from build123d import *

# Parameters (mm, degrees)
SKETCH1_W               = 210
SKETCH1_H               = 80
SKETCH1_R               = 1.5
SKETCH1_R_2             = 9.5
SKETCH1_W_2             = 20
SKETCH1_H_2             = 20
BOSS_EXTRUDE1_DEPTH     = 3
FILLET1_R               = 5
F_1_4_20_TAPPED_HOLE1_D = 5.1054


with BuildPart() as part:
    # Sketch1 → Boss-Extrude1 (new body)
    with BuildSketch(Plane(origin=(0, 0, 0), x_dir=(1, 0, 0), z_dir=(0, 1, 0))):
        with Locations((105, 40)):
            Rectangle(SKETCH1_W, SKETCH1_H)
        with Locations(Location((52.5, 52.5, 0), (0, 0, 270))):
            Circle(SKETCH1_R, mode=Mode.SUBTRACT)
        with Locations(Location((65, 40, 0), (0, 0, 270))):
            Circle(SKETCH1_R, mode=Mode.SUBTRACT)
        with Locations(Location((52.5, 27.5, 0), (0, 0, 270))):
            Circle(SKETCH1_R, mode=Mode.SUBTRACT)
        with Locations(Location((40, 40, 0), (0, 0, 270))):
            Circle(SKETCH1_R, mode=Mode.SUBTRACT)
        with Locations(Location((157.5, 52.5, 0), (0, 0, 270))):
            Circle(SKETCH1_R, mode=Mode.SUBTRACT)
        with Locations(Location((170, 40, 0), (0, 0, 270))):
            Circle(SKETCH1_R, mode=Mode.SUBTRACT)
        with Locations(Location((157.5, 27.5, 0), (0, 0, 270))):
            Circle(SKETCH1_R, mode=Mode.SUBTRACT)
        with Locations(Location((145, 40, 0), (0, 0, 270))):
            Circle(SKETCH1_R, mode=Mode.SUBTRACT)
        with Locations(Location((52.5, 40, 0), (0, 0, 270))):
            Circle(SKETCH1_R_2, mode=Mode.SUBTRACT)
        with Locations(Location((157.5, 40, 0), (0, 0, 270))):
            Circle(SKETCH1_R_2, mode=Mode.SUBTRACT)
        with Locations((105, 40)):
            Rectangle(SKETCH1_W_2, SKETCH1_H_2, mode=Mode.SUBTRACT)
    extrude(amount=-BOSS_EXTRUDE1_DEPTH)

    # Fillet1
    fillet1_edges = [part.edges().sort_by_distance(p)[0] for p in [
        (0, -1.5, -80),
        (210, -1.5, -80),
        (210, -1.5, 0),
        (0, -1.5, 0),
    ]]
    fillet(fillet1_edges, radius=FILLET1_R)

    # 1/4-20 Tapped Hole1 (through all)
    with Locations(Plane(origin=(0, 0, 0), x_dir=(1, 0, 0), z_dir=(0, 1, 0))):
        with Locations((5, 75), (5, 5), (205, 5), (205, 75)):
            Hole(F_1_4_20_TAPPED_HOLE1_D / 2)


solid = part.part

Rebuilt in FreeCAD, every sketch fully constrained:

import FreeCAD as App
import Part
import Sketcher

V = App.Vector
Q = App.Units.Quantity


def edges_at(feature, points):
    """Names of the edges that pass closest to the given points."""
    edges = feature.Shape.Edges
    near = lambda p: min(range(len(edges)), key=lambda i: edges[i].distToShape(Part.Vertex(*p))[0])
    return sorted({f"Edge{near(p) + 1}" for p in points})

doc = App.newDocument("Part")
params = doc.addObject("Spreadsheet::Sheet", "Params")
for row, (alias, value) in enumerate([
    ("sketch1_diameter", "3 mm"),
    ("sketch1_diameter2", "19 mm"),
    ("sketch1_width", "210 mm"),
    ("sketch1_width2", "20 mm"),
    ("sketch1_height", "80 mm"),
    ("pad1_length", "3 mm"),
    ("fillet_radius", "5 mm"),
    ("hole_diameter", "5.1054 mm"),
], start=1):
    params.set(f"A{row}", alias)
    params.set(f"B{row}", "=" + value)
    params.setAlias(f"B{row}", alias)

body = doc.addObject("PartDesign::Body", "Body")

# Sketch on XZ plane
sketch1 = body.newObject("Sketcher::SketchObject", "Sketch")
sketch1.AttachmentSupport = (doc.getObject("XZ_Plane"), [""])
sketch1.MapMode = "FlatFace"
sketch1.addGeometry([
    Part.LineSegment(V(0, -80, 0), V(0, 0, 0)),  # 0
    Part.LineSegment(V(0, 0, 0), V(210, 0, 0)),  # 1
    Part.LineSegment(V(210, 0, 0), V(210, -80, 0)),  # 2
    Part.LineSegment(V(210, -80, 0), V(0, -80, 0)),  # 3
    Part.Circle(V(52.5, -27.5, 0), V(0, 0, 1), 1.5),  # 4
    Part.Circle(V(157.5, -27.5, 0), V(0, 0, 1), 1.5),  # 5
    Part.Circle(V(40, -40, 0), V(0, 0, 1), 1.5),  # 6
    Part.Circle(V(52.5, -40, 0), V(0, 0, 1), 9.5),  # 7
    Part.Circle(V(65, -40, 0), V(0, 0, 1), 1.5),  # 8
    Part.Circle(V(52.5, -52.5, 0), V(0, 0, 1), 1.5),  # 9
    Part.LineSegment(V(115, -30, 0), V(95, -30, 0)),  # 10
    Part.LineSegment(V(95, -30, 0), V(95, -50, 0)),  # 11
    Part.LineSegment(V(95, -50, 0), V(115, -50, 0)),  # 12
    Part.LineSegment(V(115, -50, 0), V(115, -30, 0)),  # 13
    Part.Circle(V(145, -40, 0), V(0, 0, 1), 1.5),  # 14
    Part.Circle(V(157.5, -40, 0), V(0, 0, 1), 9.5),  # 15
    Part.Circle(V(170, -40, 0), V(0, 0, 1), 1.5),  # 16
    Part.Circle(V(157.5, -52.5, 0), V(0, 0, 1), 1.5),  # 17
], False)
sketch1.addConstraint([
    Sketcher.Constraint("Coincident", 0, 2, 1, 1),
    Sketcher.Constraint("Coincident", 1, 2, 2, 1),
    Sketcher.Constraint("Coincident", 2, 2, 3, 1),
    Sketcher.Constraint("Coincident", 3, 2, 0, 1),
    Sketcher.Constraint("Coincident", 10, 2, 11, 1),
    Sketcher.Constraint("Coincident", 11, 2, 12, 1),
    Sketcher.Constraint("Coincident", 12, 2, 13, 1),
    Sketcher.Constraint("Coincident", 13, 2, 10, 1),
    Sketcher.Constraint("Vertical", 0),
    Sketcher.Constraint("Horizontal", 1),
    Sketcher.Constraint("Vertical", 2),
    Sketcher.Constraint("Horizontal", 3),
    Sketcher.Constraint("Horizontal", 10),
    Sketcher.Constraint("Vertical", 11),
    Sketcher.Constraint("Horizontal", 12),
    Sketcher.Constraint("Vertical", 13),
    Sketcher.Constraint("Coincident", 0, 2, -1, 1),
    Sketcher.Constraint("Equal", 4, 5),
    Sketcher.Constraint("Equal", 5, 6),
    Sketcher.Constraint("Equal", 6, 8),
    Sketcher.Constraint("Equal", 8, 9),
    Sketcher.Constraint("Equal", 9, 14),
    Sketcher.Constraint("Equal", 7, 15),
    Sketcher.Constraint("Equal", 14, 16),
    Sketcher.Constraint("Equal", 16, 17),
    Sketcher.Constraint("Horizontal", 4, 3, 5, 3),
    Sketcher.Constraint("Horizontal", 6, 3, 7, 3),
    Sketcher.Constraint("Horizontal", 7, 3, 8, 3),
    Sketcher.Constraint("Horizontal", 8, 3, 14, 3),
    Sketcher.Constraint("Horizontal", 14, 3, 15, 3),
    Sketcher.Constraint("Horizontal", 15, 3, 16, 3),
    Sketcher.Constraint("Horizontal", 9, 3, 17, 3),
    Sketcher.Constraint("Vertical", 4, 3, 7, 3),
    Sketcher.Constraint("Vertical", 7, 3, 9, 3),
    Sketcher.Constraint("Vertical", 5, 3, 15, 3),
    Sketcher.Constraint("Vertical", 15, 3, 17, 3),
    Sketcher.Constraint("Equal", 12, 11),
    Sketcher.Constraint("Diameter", 4, Q("3 mm")),
    Sketcher.Constraint("Diameter", 7, Q("19 mm")),
    Sketcher.Constraint("DistanceX", 1, 1, 1, 2, Q("210 mm")),
    Sketcher.Constraint("DistanceX", 10, 2, 10, 1, Q("20 mm")),
    Sketcher.Constraint("DistanceY", 0, 1, 0, 2, Q("80 mm")),
    Sketcher.Constraint("DistanceX", -1, 1, 6, 3, Q("40 mm")),
    Sketcher.Constraint("DistanceY", 6, 3, -1, 1, Q("40 mm")),
    Sketcher.Constraint("DistanceX", -1, 1, 8, 3, Q("65 mm")),
    Sketcher.Constraint("DistanceX", -1, 1, 14, 3, Q("145 mm")),
    Sketcher.Constraint("DistanceX", -1, 1, 16, 3, Q("170 mm")),
    Sketcher.Constraint("DistanceX", -1, 1, 10, 2, Q("95 mm")),
    Sketcher.Constraint("DistanceY", 10, 2, -1, 1, Q("30 mm")),
    Sketcher.Constraint("DistanceX", 4, 3, 5, 3, Q("105 mm")),
    Sketcher.Constraint("DistanceY", 9, 3, 4, 3, Q("25 mm")),
    Sketcher.Constraint("DistanceX", -1, 1, 4, 3, Q("52.5 mm")),
    Sketcher.Constraint("DistanceY", 4, 3, -1, 1, Q("27.5 mm")),
])
sketch1.setExpression("Constraints[37]", "Params.sketch1_diameter")
sketch1.setExpression("Constraints[38]", "Params.sketch1_diameter2")
sketch1.setExpression("Constraints[39]", "Params.sketch1_width")
sketch1.setExpression("Constraints[40]", "Params.sketch1_width2")
sketch1.setExpression("Constraints[41]", "Params.sketch1_height")
pad1 = body.newObject("PartDesign::Pad", "Pad")
pad1.Profile = sketch1
pad1.setExpression("Length", "Params.pad1_length")
doc.recompute()

fillet = body.newObject("PartDesign::Fillet", "Fillet")
fillet.Base = (pad1, edges_at(pad1, [
    (0, -1.5, -80),
    (210, -1.5, -80),
    (210, -1.5, 0),
    (0, -1.5, 0),
]))
fillet.setExpression("Radius", "Params.fillet_radius")

# Sketch on XZ plane
sketch2 = body.newObject("Sketcher::SketchObject", "Sketch001")
sketch2.AttachmentSupport = (doc.getObject("XZ_Plane"), [""])
sketch2.MapMode = "FlatFace"
sketch2.addGeometry([
    Part.Circle(V(5, -75, 0), V(0, 0, 1), 2.5527),
    Part.Circle(V(5, -5, 0), V(0, 0, 1), 2.5527),
    Part.Circle(V(205, -5, 0), V(0, 0, 1), 2.5527),
    Part.Circle(V(205, -75, 0), V(0, 0, 1), 2.5527),
], False)
sketch2.addConstraint([
    Sketcher.Constraint("Equal", 0, 1),
    Sketcher.Constraint("Equal", 1, 2),
    Sketcher.Constraint("Equal", 2, 3),
    Sketcher.Constraint("Horizontal", 1, 3, 2, 3),
    Sketcher.Constraint("Horizontal", 0, 3, 3, 3),
    Sketcher.Constraint("Vertical", 0, 3, 1, 3),
    Sketcher.Constraint("Vertical", 2, 3, 3, 3),
    Sketcher.Constraint("DistanceX", -1, 1, 0, 3, Q("5 mm")),
    Sketcher.Constraint("DistanceY", 0, 3, -1, 1, Q("75 mm")),
    Sketcher.Constraint("DistanceY", 1, 3, -1, 1, Q("5 mm")),
    Sketcher.Constraint("DistanceX", -1, 1, 2, 3, Q("205 mm")),
    Sketcher.Constraint("Diameter", 0, Q("5.1054 mm")),
])
doc.recompute()
hole = body.newObject("PartDesign::Hole", "Hole")
hole.Profile = sketch2
hole.ThreadType = "None"
hole.setExpression("Diameter", "Params.hole_diameter")
hole.DepthType = "ThroughAll"
hole.Reversed = True

doc.recompute()
